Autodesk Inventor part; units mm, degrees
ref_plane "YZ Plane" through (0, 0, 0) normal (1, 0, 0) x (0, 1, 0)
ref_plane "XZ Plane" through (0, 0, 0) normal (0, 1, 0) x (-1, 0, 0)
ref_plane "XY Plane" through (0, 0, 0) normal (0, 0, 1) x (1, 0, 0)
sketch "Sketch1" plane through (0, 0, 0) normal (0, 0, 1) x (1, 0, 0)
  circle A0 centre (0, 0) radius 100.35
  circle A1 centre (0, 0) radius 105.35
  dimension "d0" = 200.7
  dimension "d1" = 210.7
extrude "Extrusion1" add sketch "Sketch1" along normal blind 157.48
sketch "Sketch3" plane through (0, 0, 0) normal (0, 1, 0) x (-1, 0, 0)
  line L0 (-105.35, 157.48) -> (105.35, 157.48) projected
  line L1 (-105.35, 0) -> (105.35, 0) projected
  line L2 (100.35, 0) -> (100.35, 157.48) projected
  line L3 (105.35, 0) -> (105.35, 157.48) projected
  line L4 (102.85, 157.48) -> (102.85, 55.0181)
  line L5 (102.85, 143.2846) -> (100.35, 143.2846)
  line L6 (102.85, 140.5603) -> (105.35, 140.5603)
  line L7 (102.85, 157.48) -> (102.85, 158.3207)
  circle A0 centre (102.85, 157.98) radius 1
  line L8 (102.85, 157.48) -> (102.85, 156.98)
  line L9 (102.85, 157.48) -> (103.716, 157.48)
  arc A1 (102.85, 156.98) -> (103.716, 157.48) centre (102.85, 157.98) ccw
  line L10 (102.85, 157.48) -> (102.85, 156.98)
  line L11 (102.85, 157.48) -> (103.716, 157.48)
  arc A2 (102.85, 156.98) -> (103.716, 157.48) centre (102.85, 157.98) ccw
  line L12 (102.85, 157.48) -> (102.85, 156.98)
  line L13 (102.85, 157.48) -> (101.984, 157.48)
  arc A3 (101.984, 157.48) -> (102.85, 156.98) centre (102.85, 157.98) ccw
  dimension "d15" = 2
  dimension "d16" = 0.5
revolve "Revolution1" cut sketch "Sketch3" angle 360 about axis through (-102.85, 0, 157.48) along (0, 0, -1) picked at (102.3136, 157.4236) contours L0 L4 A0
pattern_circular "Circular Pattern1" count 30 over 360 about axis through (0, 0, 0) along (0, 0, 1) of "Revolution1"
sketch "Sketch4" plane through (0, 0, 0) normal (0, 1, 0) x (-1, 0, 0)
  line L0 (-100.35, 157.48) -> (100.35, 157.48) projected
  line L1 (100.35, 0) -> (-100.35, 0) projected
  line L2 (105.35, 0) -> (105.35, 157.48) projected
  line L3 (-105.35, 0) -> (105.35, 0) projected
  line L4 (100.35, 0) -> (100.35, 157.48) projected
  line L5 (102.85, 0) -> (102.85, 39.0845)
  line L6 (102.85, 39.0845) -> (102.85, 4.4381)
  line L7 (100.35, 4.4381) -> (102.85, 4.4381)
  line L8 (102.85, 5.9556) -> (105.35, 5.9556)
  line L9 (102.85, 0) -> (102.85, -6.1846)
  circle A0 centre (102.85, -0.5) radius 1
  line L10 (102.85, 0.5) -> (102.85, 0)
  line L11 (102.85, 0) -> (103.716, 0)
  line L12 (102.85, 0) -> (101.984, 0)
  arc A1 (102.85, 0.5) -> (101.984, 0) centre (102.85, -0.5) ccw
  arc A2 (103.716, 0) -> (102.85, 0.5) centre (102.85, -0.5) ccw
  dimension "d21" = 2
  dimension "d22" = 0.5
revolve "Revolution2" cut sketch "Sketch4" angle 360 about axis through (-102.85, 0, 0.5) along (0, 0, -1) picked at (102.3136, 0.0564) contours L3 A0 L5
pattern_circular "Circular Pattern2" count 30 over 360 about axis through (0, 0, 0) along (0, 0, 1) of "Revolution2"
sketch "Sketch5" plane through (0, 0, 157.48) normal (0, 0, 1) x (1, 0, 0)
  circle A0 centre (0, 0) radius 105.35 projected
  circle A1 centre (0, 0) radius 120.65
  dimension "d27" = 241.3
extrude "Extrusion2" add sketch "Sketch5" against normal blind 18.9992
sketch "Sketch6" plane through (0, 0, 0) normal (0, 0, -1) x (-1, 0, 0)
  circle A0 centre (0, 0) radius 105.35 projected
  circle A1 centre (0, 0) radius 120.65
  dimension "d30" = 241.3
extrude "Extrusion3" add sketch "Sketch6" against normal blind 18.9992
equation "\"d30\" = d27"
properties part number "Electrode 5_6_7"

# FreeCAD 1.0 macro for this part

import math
import FreeCAD as App
import Part
import Sketcher
from FreeCAD import Vector

doc = App.newDocument("Part")
body = doc.addObject("PartDesign::Body", "Body")

sketch1 = body.newObject("Sketcher::SketchObject", "Sketch")
sketch1.AttachmentSupport = (doc.getObject("XY_Plane"), [""])
sketch1.MapMode = "FlatFace"
sketch1.addGeometry(Part.Circle(Vector(0, 0, 0), Vector(0, 0, 1), 105), False)
sketch1.addGeometry(Part.Circle(Vector(0, 0, 0), Vector(0, 0, 1), 100), False)
sketch1.addConstraint(Sketcher.Constraint("Coincident", 0, 3, -1, 1))
sketch1.addConstraint(Sketcher.Constraint("Coincident", 1, 3, -1, 1))
sketch1.addConstraint(Sketcher.Constraint("Diameter", 0, 210.7))
sketch1.addConstraint(Sketcher.Constraint("Diameter", 1, 200.7))
pad1 = body.newObject("PartDesign::Pad", "Pad")
pad1.Profile = sketch1
pad1.Length = 157.48

sketch2 = body.newObject("Sketcher::SketchObject", "Sketch001")
sketch2.AttachmentSupport = (doc.getObject("XZ_Plane"), [""])
sketch2.MapMode = "FlatFace"
sketch2.addGeometry(Part.LineSegment(Vector(-102.8, 157.5, 0), Vector(-102, 157.5, 0)), False)
sketch2.addGeometry(Part.ArcOfCircle(Part.Circle(Vector(-102.8, 158, 0), Vector(0, 0, 1), 1), math.radians(-90), math.radians(-30)), False)
sketch2.addGeometry(Part.LineSegment(Vector(-102.8, 157, 0), Vector(-102.8, 157.5, 0)), False)
sketch2.addGeometry(Part.LineSegment(Vector(-102.8, 158, 0), Vector(-102.8, 157, 0)), True)
sketch2.addConstraint(Sketcher.Constraint("Coincident", 0, 2, 1, 2))
sketch2.addConstraint(Sketcher.Constraint("Coincident", 1, 1, 2, 1))
sketch2.addConstraint(Sketcher.Constraint("Coincident", 2, 2, 0, 1))
sketch2.addConstraint(Sketcher.Constraint("Horizontal", 0))
sketch2.addConstraint(Sketcher.Constraint("Vertical", 2))
sketch2.addConstraint(Sketcher.Constraint("Vertical", 3))
sketch2.addConstraint(Sketcher.Constraint("Coincident", 3, 1, 1, 3))
sketch2.addConstraint(Sketcher.Constraint("Coincident", 3, 2, 1, 1))
sketch2.addConstraint(Sketcher.Constraint("Radius", 1, 1.0))
sketch2.addConstraint(Sketcher.Constraint("DistanceY", 2, 1, 2, 2, 0.5))
sketch2.addConstraint(Sketcher.Constraint("DistanceX", 1, 3, -1, 1, 102.85))
sketch2.addConstraint(Sketcher.Constraint("DistanceY", -1, 1, 1, 3, 157.98))
groove = body.newObject("PartDesign::Groove", "Groove")
groove.Profile = sketch2
groove.ReferenceAxis = (sketch2, ["Axis0"])
groove.Angle = 360
doc.recompute()

polarpattern = body.newObject("PartDesign::PolarPattern", "PolarPattern")
polarpattern.Originals = [groove]
polarpattern.Axis = (doc.getObject("Z_Axis"), [""])
polarpattern.Angle = 360
polarpattern.Occurrences = 30
body.Tip = polarpattern

sketch3 = body.newObject("Sketcher::SketchObject", "Sketch002")
sketch3.AttachmentSupport = (doc.getObject("XZ_Plane"), [""])
sketch3.MapMode = "FlatFace"
sketch3.addGeometry(Part.LineSegment(Vector(-102, 0, 0), Vector(-102.8, 0, 0)), False)
sketch3.addGeometry(Part.LineSegment(Vector(-102.8, 0, 0), Vector(-102.8, 0.5, 0)), False)
sketch3.addGeometry(Part.ArcOfCircle(Part.Circle(Vector(-102.8, -0.5, 0), Vector(0, 0, 1), 1), math.radians(30), math.radians(90)), False)
sketch3.addGeometry(Part.LineSegment(Vector(-102.8, 0.5, 0), Vector(-102.8, -0.5, 0)), True)
sketch3.addConstraint(Sketcher.Constraint("Coincident", 0, 2, 1, 1))
sketch3.addConstraint(Sketcher.Constraint("Coincident", 1, 2, 2, 2))
sketch3.addConstraint(Sketcher.Constraint("Coincident", 2, 1, 0, 1))
sketch3.addConstraint(Sketcher.Constraint("Horizontal", 0))
sketch3.addConstraint(Sketcher.Constraint("Vertical", 1))
sketch3.addConstraint(Sketcher.Constraint("Vertical", 3))
sketch3.addConstraint(Sketcher.Constraint("Coincident", 3, 1, 1, 2))
sketch3.addConstraint(Sketcher.Constraint("Coincident", 3, 2, 2, 3))
sketch3.addConstraint(Sketcher.Constraint("PointOnObject", 0, 2, -1))
sketch3.addConstraint(Sketcher.Constraint("Radius", 2, 1.0))
sketch3.addConstraint(Sketcher.Constraint("DistanceY", 1, 1, 1, 2, 0.5))
sketch3.addConstraint(Sketcher.Constraint("DistanceX", 2, 3, -1, 1, 102.85))
groove2 = body.newObject("PartDesign::Groove", "Groove001")
groove2.Profile = sketch3
groove2.ReferenceAxis = (sketch3, ["Axis0"])
groove2.Angle = 360
doc.recompute()

polarpattern2 = body.newObject("PartDesign::PolarPattern", "PolarPattern001")
polarpattern2.Originals = [groove2]
polarpattern2.Axis = (doc.getObject("Z_Axis"), [""])
polarpattern2.Angle = 360
polarpattern2.Occurrences = 30
body.Tip = polarpattern2

sketch4 = body.newObject("Sketcher::SketchObject", "Sketch003")
sketch4.AttachmentSupport = (doc.getObject("XY_Plane"), [""])
sketch4.MapMode = "FlatFace"
sketch4.AttachmentOffset = App.Placement(Vector(0, 0, 157.48), App.Rotation())
sketch4.addGeometry(Part.Circle(Vector(0, 0, 0), Vector(0, 0, 1), 121), False)
sketch4.addGeometry(Part.Circle(Vector(0, 0, 0), Vector(0, 0, 1), 105), False)
sketch4.addConstraint(Sketcher.Constraint("Coincident", 0, 3, -1, 1))
sketch4.addConstraint(Sketcher.Constraint("Coincident", 1, 3, -1, 1))
sketch4.addConstraint(Sketcher.Constraint("Diameter", 0, 241.3))
sketch4.addConstraint(Sketcher.Constraint("Diameter", 1, 210.7))
pad2 = body.newObject("PartDesign::Pad", "Pad001")
pad2.Profile = sketch4
pad2.Length = 18.9992
pad2.Reversed = True

sketch5 = body.newObject("Sketcher::SketchObject", "Sketch004")
sketch5.AttachmentSupport = (doc.getObject("XY_Plane"), [""])
sketch5.MapMode = "FlatFace"
sketch5.addGeometry(Part.Circle(Vector(0, 0, 0), Vector(0, 0, 1), 121), False)
sketch5.addGeometry(Part.Circle(Vector(0, 0, 0), Vector(0, 0, 1), 105), False)
sketch5.addConstraint(Sketcher.Constraint("Coincident", 0, 3, -1, 1))
sketch5.addConstraint(Sketcher.Constraint("Coincident", 1, 3, -1, 1))
sketch5.addConstraint(Sketcher.Constraint("Diameter", 0, 241.3))
sketch5.addConstraint(Sketcher.Constraint("Diameter", 1, 210.7))
pad3 = body.newObject("PartDesign::Pad", "Pad002")
pad3.Profile = sketch5
pad3.Length = 18.9992

doc.recompute()
